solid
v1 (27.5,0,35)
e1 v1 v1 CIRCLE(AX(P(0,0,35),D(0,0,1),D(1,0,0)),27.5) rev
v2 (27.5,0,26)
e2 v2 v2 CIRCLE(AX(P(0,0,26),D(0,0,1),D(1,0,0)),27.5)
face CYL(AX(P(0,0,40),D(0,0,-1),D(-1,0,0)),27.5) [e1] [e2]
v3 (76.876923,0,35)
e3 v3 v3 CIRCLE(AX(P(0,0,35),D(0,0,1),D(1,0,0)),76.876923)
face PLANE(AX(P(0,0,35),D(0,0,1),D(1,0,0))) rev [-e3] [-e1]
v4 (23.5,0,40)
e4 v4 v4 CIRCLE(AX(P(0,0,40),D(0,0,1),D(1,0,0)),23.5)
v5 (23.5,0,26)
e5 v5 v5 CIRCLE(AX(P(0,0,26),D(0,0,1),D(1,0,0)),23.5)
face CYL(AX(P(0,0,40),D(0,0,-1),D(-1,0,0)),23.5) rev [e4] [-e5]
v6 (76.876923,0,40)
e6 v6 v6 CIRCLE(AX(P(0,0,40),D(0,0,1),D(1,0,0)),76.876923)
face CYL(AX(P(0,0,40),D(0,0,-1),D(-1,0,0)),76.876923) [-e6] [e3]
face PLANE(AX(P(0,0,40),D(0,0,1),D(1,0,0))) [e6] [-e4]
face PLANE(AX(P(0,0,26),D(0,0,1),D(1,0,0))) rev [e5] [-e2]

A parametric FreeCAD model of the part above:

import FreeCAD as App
import Part
import Sketcher
from FreeCAD import Vector
Q = App.Units.Quantity

doc = App.newDocument("Part")
params = doc.addObject("Spreadsheet::Sheet", "Params")
for row, (alias, value) in enumerate([
    ("sketch1_diameter", "47 mm"),
    ("pad1_length", "5 mm"),
    ("sketch2_diameter", "55 mm"),
    ("sketch2_diameter2", "47 mm"),
    ("pad2_length", "14 mm"),
], start=1):
    params.set(f"A{row}", alias)
    params.set(f"B{row}", "=" + value)
    params.setAlias(f"B{row}", alias)

body = doc.addObject("PartDesign::Body", "Body")

sketch1 = body.newObject("Sketcher::SketchObject", "Sketch")
sketch1.AttachmentSupport = (doc.getObject("XY_Plane"), [""])
sketch1.MapMode = "FlatFace"
sketch1.AttachmentOffset = App.Placement(Vector(0, 0, 35), App.Rotation())
sketch1.addGeometry([
    Part.Circle(Vector(0, 0, 0), Vector(0, 0, 1), 76.876923),
    Part.Circle(Vector(0, 0, 0), Vector(0, 0, 1), 23.5),
], False)
sketch1.addConstraint([
    Sketcher.Constraint("Coincident", 0, 3, -1, 1),
    Sketcher.Constraint("Coincident", 1, 3, -1, 1),
    Sketcher.Constraint("Diameter", 1, Q("47 mm")),
    Sketcher.Constraint("Diameter", 0, Q("153.753846 mm")),
])
sketch1.setExpression("Constraints[2]", "Params.sketch1_diameter")
pad1 = body.newObject("PartDesign::Pad", "Pad")
pad1.Profile = sketch1
pad1.setExpression("Length", "Params.pad1_length")

sketch2 = body.newObject("Sketcher::SketchObject", "Sketch001")
sketch2.AttachmentSupport = (doc.getObject("XY_Plane"), [""])
sketch2.MapMode = "FlatFace"
sketch2.AttachmentOffset = App.Placement(Vector(0, 0, 26), App.Rotation())
sketch2.addGeometry([
    Part.Circle(Vector(0, 0, 0), Vector(0, 0, 1), 27.5),
    Part.Circle(Vector(0, 0, 0), Vector(0, 0, 1), 23.5),
], False)
sketch2.addConstraint([
    Sketcher.Constraint("Coincident", 0, 3, -1, 1),
    Sketcher.Constraint("Coincident", 1, 3, -1, 1),
    Sketcher.Constraint("Diameter", 0, Q("55 mm")),
    Sketcher.Constraint("Diameter", 1, Q("47 mm")),
])
sketch2.setExpression("Constraints[2]", "Params.sketch2_diameter")
sketch2.setExpression("Constraints[3]", "Params.sketch2_diameter2")
pad2 = body.newObject("PartDesign::Pad", "Pad001")
pad2.Profile = sketch2
pad2.setExpression("Length", "Params.pad2_length")

doc.recompute()
